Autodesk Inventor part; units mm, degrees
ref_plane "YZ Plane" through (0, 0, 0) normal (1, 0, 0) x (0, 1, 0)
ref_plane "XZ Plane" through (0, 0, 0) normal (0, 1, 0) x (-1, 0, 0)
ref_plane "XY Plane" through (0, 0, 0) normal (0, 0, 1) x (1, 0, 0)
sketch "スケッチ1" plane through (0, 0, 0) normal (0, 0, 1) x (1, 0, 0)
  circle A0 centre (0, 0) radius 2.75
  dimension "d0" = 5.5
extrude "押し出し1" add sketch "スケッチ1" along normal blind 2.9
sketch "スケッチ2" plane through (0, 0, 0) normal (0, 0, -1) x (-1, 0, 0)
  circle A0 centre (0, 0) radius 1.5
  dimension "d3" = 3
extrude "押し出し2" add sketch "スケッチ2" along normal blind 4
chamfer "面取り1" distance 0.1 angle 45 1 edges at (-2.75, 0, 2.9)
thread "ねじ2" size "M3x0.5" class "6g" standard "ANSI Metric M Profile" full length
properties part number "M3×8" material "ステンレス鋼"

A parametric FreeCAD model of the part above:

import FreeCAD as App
import Part
import Sketcher


def edges_at(feature, points):
    """Names of the edges that pass closest to the given points."""
    edges = feature.Shape.Edges
    near = lambda p: min(range(len(edges)), key=lambda i: edges[i].distToShape(Part.Vertex(*p))[0])
    return sorted({f"Edge{near(p) + 1}" for p in points})

doc = App.newDocument("Part")
body = doc.addObject("PartDesign::Body", "Body")

# Sketch on XY plane
sketch1 = doc.addObject("Sketcher::SketchObject", "Sketch")
body.addObject(sketch1)
sketch1.AttachmentSupport = (doc.XY_Plane, [""])
sketch1.MapMode = "FlatFace"
sketch1.addGeometry(Part.Circle(App.Vector(0, 0, 0), App.Vector(0, 0, 1), 2.8), False)
sketch1.addConstraint([
    Sketcher.Constraint("Coincident", 0, 3, -1, 1),
    Sketcher.Constraint("Diameter", 0, 5.5),
])
pad1 = doc.addObject("PartDesign::Pad", "Pad")
body.addObject(pad1)
pad1.Profile = sketch1
pad1.Length = 2.9

# Sketch on XY plane
sketch2 = doc.addObject("Sketcher::SketchObject", "Sketch001")
body.addObject(sketch2)
sketch2.AttachmentSupport = (doc.XY_Plane, [""])
sketch2.MapMode = "FlatFace"
sketch2.addGeometry(Part.Circle(App.Vector(0, 0, 0), App.Vector(0, 0, 1), 1.5), False)
sketch2.addConstraint([
    Sketcher.Constraint("Coincident", 0, 3, -1, 1),
    Sketcher.Constraint("Diameter", 0, 3.0),
])
pad2 = doc.addObject("PartDesign::Pad", "Pad001")
body.addObject(pad2)
pad2.Profile = sketch2
pad2.Length = 4
pad2.Reversed = True
doc.recompute()

chamfer = doc.addObject("PartDesign::Chamfer", "Chamfer")
body.addObject(chamfer)
chamfer.Base = (pad2, edges_at(pad2, [(-2.75, 0, 2.9)]))
chamfer.Size = 0.1

doc.recompute()
